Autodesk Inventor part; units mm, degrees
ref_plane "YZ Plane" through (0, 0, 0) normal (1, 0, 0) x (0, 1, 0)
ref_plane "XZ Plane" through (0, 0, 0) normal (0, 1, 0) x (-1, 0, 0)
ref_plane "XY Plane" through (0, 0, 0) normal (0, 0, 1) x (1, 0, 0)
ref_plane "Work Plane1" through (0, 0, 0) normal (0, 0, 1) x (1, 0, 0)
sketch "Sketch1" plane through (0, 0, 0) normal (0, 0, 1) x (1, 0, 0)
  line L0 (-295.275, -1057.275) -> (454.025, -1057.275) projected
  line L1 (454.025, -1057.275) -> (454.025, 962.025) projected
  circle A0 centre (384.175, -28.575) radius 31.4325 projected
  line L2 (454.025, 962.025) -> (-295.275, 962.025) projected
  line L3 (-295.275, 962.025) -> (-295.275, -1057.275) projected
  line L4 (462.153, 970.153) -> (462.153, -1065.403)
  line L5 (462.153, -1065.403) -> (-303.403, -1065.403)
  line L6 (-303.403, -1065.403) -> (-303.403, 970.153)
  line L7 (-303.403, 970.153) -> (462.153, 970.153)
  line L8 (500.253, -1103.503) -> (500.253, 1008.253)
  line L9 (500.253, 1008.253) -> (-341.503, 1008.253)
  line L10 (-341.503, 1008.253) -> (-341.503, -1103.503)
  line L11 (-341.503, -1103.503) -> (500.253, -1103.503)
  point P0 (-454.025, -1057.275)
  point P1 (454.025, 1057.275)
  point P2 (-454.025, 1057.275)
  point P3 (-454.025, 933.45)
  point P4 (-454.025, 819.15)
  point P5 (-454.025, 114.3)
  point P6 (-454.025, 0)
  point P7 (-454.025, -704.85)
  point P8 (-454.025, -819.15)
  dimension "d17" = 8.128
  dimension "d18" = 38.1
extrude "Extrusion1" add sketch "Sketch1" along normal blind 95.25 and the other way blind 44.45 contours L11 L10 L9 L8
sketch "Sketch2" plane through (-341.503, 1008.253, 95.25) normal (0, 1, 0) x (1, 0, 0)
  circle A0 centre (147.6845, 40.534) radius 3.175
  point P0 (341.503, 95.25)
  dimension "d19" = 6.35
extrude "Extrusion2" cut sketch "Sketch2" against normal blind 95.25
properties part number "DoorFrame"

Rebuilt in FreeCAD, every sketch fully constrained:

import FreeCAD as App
import Part
import Sketcher

V = App.Vector
Q = App.Units.Quantity

doc = App.newDocument("Part")
body = doc.addObject("PartDesign::Body", "Body")

# Sketch on XY plane
sketch1 = body.newObject("Sketcher::SketchObject", "Sketch")
sketch1.AttachmentSupport = (doc.getObject("XY_Plane"), [""])
sketch1.MapMode = "FlatFace"
sketch1.addGeometry([
    Part.LineSegment(V(-342, -1104, 0), V(500, -1104, 0)),  # 0
    Part.LineSegment(V(500, -1104, 0), V(500, 1008, 0)),  # 1
    Part.LineSegment(V(500, 1008, 0), V(-342, 1008, 0)),  # 2
    Part.LineSegment(V(-342, 1008, 0), V(-342, -1104, 0)),  # 3
    Part.LineSegment(V(-303, 970, 0), V(462, 970, 0)),  # 4
    Part.LineSegment(V(462, 970, 0), V(462, -1065, 0)),  # 5
    Part.LineSegment(V(462, -1065, 0), V(-303, -1065, 0)),  # 6
    Part.LineSegment(V(-303, -1065, 0), V(-303, 970, 0)),  # 7
], False)
sketch1.addConstraint([
    Sketcher.Constraint("Coincident", 0, 2, 1, 1),
    Sketcher.Constraint("Coincident", 1, 2, 2, 1),
    Sketcher.Constraint("Coincident", 2, 2, 3, 1),
    Sketcher.Constraint("Coincident", 3, 2, 0, 1),
    Sketcher.Constraint("Coincident", 4, 2, 5, 1),
    Sketcher.Constraint("Coincident", 5, 2, 6, 1),
    Sketcher.Constraint("Coincident", 6, 2, 7, 1),
    Sketcher.Constraint("Coincident", 7, 2, 4, 1),
    Sketcher.Constraint("Horizontal", 0),
    Sketcher.Constraint("Vertical", 1),
    Sketcher.Constraint("Horizontal", 2),
    Sketcher.Constraint("Vertical", 3),
    Sketcher.Constraint("Horizontal", 4),
    Sketcher.Constraint("Vertical", 5),
    Sketcher.Constraint("Horizontal", 6),
    Sketcher.Constraint("Vertical", 7),
    Sketcher.Constraint("DistanceX", 4, 2, 1, 2, Q("1.5 in")),
    Sketcher.Constraint("DistanceY", 4, 2, 1, 2, Q("1.5 in")),
    Sketcher.Constraint("DistanceY", 0, 2, 5, 2, Q("1.5 in")),
    Sketcher.Constraint("DistanceX", 3, 2, 6, 2, Q("1.5 in")),
    Sketcher.Constraint("DistanceX", 0, 1, 0, 2, Q("33.14 in")),
    Sketcher.Constraint("DistanceY", 1, 1, 1, 2, Q("83.14 in")),
    Sketcher.Constraint("DistanceX", -1, 1, 0, 2, Q("19.695 in")),
    Sketcher.Constraint("DistanceY", 0, 2, -1, 1, Q("43.445 in")),
])
pad1 = body.newObject("PartDesign::Pad", "Pad")
pad1.Profile = sketch1
pad1.Type = "TwoLengths"
pad1.Length = Q("3.75 in")
pad1.Length2 = Q("1.75 in")

# Sketch on XZ plane
sketch2 = body.newObject("Sketcher::SketchObject", "Sketch001")
sketch2.AttachmentSupport = (doc.getObject("XZ_Plane"), [""])
sketch2.MapMode = "FlatFace"
sketch2.AttachmentOffset = App.Placement(V(0, 0, -39.695 * 25.4), App.Rotation())
sketch2.addGeometry(Part.Circle(V(-193.8, 54.7, 0), V(0, 0, 1), 3.2), False)
sketch2.addConstraint([
    Sketcher.Constraint("Diameter", 0, Q("0.25 in")),
    Sketcher.Constraint("DistanceX", 0, 3, -1, 1, 193.8185),
    Sketcher.Constraint("DistanceY", -1, 1, 0, 3, 54.716),
])
pocket1 = body.newObject("PartDesign::Pocket", "Pocket")
pocket1.Profile = sketch2
pocket1.Length = Q("3.75 in")
pocket1.Reversed = True

doc.recompute()
